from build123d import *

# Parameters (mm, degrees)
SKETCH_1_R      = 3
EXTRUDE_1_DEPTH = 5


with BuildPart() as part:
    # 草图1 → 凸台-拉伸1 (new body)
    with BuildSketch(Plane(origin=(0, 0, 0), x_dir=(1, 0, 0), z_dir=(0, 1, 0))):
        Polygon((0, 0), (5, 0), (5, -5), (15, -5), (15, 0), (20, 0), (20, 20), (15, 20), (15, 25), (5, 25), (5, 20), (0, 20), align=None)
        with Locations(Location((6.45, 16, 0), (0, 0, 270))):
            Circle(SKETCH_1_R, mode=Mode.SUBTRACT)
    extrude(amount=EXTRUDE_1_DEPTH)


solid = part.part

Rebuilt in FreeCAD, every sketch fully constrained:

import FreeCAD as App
import Part
import Sketcher
from FreeCAD import Vector


def add_polygon(sketch, points):
    """Adds a closed chain of lines whose ends are joined by coincident constraints."""
    first, n = sketch.GeometryCount, len(points)
    for a, b in zip(points, points[1:] + points[:1]):
        sketch.addGeometry(Part.LineSegment(App.Vector(*a, 0), App.Vector(*b, 0)), False)
    for i in range(n):
        sketch.addConstraint(Sketcher.Constraint("Coincident", first + i, 2, first + (i + 1) % n, 1))

doc = App.newDocument("Part")
params = doc.addObject("Spreadsheet::Sheet", "Params")
for row, (alias, value) in enumerate([
    ("sketch1_diameter", "6 mm"),
    ("sketch1_width", "5 mm"),
    ("sketch1_width2", "10 mm"),
    ("sketch1_height", "20 mm"),
    ("pad1_length", "5 mm"),
], start=1):
    params.set(f"A{row}", alias)
    params.set(f"B{row}", "=" + value)
    params.setAlias(f"B{row}", alias)

body = doc.addObject("PartDesign::Body", "Body")

# Sketch on XZ plane
sketch1 = body.newObject("Sketcher::SketchObject", "Sketch")
sketch1.AttachmentSupport = (doc.getObject("XZ_Plane"), [""])
sketch1.MapMode = "FlatFace"
add_polygon(sketch1, [(0, 0), (5, 0), (5, 5), (15, 5), (15, 0), (20, 0), (20, -20), (15, -20), (15, -25), (5, -25), (5, -20), (0, -20)])  # lines 0-11
sketch1.addGeometry(Part.Circle(Vector(6.5, -16, 0), Vector(0, 0, 1), 3), False)  # 12
sketch1.addConstraint([
    Sketcher.Constraint("Horizontal", 0),
    Sketcher.Constraint("Vertical", 1),
    Sketcher.Constraint("Horizontal", 2),
    Sketcher.Constraint("Vertical", 3),
    Sketcher.Constraint("Horizontal", 4),
    Sketcher.Constraint("Vertical", 5),
    Sketcher.Constraint("Horizontal", 6),
    Sketcher.Constraint("Vertical", 7),
    Sketcher.Constraint("Horizontal", 8),
    Sketcher.Constraint("Vertical", 9),
    Sketcher.Constraint("Horizontal", 10),
    Sketcher.Constraint("Vertical", 11),
    Sketcher.Constraint("Coincident", 11, 2, -1, 1),
    Sketcher.Constraint("PointOnObject", 3, 2, -1),
    Sketcher.Constraint("Horizontal", 6, 2, 9, 2),
    Sketcher.Constraint("Vertical", 3, 2, 6, 2),
    Sketcher.Constraint("Vertical", 1, 2, 8, 2),
    Sketcher.Constraint("Equal", 0, 4),
    Sketcher.Constraint("Equal", 10, 1),
    Sketcher.Constraint("Equal", 3, 7),
    Sketcher.Constraint("Diameter", 12, 6.0),
    Sketcher.Constraint("DistanceX", 0, 1, 0, 2, 5.0),
    Sketcher.Constraint("DistanceX", 2, 1, 2, 2, 10.0),
    Sketcher.Constraint("DistanceY", 5, 2, 5, 1, 20.0),
    Sketcher.Constraint("DistanceY", 12, 3, -1, 1, 16.0),
    Sketcher.Constraint("DistanceX", -1, 1, 12, 3, 6.45),
])
sketch1.setExpression("Constraints[32]", "Params.sketch1_diameter")
sketch1.setExpression("Constraints[33]", "Params.sketch1_width")
sketch1.setExpression("Constraints[34]", "Params.sketch1_width2")
sketch1.setExpression("Constraints[35]", "Params.sketch1_height")
pad1 = body.newObject("PartDesign::Pad", "Pad")
pad1.Profile = sketch1
pad1.setExpression("Length", "Params.pad1_length")
pad1.Reversed = True

doc.recompute()
